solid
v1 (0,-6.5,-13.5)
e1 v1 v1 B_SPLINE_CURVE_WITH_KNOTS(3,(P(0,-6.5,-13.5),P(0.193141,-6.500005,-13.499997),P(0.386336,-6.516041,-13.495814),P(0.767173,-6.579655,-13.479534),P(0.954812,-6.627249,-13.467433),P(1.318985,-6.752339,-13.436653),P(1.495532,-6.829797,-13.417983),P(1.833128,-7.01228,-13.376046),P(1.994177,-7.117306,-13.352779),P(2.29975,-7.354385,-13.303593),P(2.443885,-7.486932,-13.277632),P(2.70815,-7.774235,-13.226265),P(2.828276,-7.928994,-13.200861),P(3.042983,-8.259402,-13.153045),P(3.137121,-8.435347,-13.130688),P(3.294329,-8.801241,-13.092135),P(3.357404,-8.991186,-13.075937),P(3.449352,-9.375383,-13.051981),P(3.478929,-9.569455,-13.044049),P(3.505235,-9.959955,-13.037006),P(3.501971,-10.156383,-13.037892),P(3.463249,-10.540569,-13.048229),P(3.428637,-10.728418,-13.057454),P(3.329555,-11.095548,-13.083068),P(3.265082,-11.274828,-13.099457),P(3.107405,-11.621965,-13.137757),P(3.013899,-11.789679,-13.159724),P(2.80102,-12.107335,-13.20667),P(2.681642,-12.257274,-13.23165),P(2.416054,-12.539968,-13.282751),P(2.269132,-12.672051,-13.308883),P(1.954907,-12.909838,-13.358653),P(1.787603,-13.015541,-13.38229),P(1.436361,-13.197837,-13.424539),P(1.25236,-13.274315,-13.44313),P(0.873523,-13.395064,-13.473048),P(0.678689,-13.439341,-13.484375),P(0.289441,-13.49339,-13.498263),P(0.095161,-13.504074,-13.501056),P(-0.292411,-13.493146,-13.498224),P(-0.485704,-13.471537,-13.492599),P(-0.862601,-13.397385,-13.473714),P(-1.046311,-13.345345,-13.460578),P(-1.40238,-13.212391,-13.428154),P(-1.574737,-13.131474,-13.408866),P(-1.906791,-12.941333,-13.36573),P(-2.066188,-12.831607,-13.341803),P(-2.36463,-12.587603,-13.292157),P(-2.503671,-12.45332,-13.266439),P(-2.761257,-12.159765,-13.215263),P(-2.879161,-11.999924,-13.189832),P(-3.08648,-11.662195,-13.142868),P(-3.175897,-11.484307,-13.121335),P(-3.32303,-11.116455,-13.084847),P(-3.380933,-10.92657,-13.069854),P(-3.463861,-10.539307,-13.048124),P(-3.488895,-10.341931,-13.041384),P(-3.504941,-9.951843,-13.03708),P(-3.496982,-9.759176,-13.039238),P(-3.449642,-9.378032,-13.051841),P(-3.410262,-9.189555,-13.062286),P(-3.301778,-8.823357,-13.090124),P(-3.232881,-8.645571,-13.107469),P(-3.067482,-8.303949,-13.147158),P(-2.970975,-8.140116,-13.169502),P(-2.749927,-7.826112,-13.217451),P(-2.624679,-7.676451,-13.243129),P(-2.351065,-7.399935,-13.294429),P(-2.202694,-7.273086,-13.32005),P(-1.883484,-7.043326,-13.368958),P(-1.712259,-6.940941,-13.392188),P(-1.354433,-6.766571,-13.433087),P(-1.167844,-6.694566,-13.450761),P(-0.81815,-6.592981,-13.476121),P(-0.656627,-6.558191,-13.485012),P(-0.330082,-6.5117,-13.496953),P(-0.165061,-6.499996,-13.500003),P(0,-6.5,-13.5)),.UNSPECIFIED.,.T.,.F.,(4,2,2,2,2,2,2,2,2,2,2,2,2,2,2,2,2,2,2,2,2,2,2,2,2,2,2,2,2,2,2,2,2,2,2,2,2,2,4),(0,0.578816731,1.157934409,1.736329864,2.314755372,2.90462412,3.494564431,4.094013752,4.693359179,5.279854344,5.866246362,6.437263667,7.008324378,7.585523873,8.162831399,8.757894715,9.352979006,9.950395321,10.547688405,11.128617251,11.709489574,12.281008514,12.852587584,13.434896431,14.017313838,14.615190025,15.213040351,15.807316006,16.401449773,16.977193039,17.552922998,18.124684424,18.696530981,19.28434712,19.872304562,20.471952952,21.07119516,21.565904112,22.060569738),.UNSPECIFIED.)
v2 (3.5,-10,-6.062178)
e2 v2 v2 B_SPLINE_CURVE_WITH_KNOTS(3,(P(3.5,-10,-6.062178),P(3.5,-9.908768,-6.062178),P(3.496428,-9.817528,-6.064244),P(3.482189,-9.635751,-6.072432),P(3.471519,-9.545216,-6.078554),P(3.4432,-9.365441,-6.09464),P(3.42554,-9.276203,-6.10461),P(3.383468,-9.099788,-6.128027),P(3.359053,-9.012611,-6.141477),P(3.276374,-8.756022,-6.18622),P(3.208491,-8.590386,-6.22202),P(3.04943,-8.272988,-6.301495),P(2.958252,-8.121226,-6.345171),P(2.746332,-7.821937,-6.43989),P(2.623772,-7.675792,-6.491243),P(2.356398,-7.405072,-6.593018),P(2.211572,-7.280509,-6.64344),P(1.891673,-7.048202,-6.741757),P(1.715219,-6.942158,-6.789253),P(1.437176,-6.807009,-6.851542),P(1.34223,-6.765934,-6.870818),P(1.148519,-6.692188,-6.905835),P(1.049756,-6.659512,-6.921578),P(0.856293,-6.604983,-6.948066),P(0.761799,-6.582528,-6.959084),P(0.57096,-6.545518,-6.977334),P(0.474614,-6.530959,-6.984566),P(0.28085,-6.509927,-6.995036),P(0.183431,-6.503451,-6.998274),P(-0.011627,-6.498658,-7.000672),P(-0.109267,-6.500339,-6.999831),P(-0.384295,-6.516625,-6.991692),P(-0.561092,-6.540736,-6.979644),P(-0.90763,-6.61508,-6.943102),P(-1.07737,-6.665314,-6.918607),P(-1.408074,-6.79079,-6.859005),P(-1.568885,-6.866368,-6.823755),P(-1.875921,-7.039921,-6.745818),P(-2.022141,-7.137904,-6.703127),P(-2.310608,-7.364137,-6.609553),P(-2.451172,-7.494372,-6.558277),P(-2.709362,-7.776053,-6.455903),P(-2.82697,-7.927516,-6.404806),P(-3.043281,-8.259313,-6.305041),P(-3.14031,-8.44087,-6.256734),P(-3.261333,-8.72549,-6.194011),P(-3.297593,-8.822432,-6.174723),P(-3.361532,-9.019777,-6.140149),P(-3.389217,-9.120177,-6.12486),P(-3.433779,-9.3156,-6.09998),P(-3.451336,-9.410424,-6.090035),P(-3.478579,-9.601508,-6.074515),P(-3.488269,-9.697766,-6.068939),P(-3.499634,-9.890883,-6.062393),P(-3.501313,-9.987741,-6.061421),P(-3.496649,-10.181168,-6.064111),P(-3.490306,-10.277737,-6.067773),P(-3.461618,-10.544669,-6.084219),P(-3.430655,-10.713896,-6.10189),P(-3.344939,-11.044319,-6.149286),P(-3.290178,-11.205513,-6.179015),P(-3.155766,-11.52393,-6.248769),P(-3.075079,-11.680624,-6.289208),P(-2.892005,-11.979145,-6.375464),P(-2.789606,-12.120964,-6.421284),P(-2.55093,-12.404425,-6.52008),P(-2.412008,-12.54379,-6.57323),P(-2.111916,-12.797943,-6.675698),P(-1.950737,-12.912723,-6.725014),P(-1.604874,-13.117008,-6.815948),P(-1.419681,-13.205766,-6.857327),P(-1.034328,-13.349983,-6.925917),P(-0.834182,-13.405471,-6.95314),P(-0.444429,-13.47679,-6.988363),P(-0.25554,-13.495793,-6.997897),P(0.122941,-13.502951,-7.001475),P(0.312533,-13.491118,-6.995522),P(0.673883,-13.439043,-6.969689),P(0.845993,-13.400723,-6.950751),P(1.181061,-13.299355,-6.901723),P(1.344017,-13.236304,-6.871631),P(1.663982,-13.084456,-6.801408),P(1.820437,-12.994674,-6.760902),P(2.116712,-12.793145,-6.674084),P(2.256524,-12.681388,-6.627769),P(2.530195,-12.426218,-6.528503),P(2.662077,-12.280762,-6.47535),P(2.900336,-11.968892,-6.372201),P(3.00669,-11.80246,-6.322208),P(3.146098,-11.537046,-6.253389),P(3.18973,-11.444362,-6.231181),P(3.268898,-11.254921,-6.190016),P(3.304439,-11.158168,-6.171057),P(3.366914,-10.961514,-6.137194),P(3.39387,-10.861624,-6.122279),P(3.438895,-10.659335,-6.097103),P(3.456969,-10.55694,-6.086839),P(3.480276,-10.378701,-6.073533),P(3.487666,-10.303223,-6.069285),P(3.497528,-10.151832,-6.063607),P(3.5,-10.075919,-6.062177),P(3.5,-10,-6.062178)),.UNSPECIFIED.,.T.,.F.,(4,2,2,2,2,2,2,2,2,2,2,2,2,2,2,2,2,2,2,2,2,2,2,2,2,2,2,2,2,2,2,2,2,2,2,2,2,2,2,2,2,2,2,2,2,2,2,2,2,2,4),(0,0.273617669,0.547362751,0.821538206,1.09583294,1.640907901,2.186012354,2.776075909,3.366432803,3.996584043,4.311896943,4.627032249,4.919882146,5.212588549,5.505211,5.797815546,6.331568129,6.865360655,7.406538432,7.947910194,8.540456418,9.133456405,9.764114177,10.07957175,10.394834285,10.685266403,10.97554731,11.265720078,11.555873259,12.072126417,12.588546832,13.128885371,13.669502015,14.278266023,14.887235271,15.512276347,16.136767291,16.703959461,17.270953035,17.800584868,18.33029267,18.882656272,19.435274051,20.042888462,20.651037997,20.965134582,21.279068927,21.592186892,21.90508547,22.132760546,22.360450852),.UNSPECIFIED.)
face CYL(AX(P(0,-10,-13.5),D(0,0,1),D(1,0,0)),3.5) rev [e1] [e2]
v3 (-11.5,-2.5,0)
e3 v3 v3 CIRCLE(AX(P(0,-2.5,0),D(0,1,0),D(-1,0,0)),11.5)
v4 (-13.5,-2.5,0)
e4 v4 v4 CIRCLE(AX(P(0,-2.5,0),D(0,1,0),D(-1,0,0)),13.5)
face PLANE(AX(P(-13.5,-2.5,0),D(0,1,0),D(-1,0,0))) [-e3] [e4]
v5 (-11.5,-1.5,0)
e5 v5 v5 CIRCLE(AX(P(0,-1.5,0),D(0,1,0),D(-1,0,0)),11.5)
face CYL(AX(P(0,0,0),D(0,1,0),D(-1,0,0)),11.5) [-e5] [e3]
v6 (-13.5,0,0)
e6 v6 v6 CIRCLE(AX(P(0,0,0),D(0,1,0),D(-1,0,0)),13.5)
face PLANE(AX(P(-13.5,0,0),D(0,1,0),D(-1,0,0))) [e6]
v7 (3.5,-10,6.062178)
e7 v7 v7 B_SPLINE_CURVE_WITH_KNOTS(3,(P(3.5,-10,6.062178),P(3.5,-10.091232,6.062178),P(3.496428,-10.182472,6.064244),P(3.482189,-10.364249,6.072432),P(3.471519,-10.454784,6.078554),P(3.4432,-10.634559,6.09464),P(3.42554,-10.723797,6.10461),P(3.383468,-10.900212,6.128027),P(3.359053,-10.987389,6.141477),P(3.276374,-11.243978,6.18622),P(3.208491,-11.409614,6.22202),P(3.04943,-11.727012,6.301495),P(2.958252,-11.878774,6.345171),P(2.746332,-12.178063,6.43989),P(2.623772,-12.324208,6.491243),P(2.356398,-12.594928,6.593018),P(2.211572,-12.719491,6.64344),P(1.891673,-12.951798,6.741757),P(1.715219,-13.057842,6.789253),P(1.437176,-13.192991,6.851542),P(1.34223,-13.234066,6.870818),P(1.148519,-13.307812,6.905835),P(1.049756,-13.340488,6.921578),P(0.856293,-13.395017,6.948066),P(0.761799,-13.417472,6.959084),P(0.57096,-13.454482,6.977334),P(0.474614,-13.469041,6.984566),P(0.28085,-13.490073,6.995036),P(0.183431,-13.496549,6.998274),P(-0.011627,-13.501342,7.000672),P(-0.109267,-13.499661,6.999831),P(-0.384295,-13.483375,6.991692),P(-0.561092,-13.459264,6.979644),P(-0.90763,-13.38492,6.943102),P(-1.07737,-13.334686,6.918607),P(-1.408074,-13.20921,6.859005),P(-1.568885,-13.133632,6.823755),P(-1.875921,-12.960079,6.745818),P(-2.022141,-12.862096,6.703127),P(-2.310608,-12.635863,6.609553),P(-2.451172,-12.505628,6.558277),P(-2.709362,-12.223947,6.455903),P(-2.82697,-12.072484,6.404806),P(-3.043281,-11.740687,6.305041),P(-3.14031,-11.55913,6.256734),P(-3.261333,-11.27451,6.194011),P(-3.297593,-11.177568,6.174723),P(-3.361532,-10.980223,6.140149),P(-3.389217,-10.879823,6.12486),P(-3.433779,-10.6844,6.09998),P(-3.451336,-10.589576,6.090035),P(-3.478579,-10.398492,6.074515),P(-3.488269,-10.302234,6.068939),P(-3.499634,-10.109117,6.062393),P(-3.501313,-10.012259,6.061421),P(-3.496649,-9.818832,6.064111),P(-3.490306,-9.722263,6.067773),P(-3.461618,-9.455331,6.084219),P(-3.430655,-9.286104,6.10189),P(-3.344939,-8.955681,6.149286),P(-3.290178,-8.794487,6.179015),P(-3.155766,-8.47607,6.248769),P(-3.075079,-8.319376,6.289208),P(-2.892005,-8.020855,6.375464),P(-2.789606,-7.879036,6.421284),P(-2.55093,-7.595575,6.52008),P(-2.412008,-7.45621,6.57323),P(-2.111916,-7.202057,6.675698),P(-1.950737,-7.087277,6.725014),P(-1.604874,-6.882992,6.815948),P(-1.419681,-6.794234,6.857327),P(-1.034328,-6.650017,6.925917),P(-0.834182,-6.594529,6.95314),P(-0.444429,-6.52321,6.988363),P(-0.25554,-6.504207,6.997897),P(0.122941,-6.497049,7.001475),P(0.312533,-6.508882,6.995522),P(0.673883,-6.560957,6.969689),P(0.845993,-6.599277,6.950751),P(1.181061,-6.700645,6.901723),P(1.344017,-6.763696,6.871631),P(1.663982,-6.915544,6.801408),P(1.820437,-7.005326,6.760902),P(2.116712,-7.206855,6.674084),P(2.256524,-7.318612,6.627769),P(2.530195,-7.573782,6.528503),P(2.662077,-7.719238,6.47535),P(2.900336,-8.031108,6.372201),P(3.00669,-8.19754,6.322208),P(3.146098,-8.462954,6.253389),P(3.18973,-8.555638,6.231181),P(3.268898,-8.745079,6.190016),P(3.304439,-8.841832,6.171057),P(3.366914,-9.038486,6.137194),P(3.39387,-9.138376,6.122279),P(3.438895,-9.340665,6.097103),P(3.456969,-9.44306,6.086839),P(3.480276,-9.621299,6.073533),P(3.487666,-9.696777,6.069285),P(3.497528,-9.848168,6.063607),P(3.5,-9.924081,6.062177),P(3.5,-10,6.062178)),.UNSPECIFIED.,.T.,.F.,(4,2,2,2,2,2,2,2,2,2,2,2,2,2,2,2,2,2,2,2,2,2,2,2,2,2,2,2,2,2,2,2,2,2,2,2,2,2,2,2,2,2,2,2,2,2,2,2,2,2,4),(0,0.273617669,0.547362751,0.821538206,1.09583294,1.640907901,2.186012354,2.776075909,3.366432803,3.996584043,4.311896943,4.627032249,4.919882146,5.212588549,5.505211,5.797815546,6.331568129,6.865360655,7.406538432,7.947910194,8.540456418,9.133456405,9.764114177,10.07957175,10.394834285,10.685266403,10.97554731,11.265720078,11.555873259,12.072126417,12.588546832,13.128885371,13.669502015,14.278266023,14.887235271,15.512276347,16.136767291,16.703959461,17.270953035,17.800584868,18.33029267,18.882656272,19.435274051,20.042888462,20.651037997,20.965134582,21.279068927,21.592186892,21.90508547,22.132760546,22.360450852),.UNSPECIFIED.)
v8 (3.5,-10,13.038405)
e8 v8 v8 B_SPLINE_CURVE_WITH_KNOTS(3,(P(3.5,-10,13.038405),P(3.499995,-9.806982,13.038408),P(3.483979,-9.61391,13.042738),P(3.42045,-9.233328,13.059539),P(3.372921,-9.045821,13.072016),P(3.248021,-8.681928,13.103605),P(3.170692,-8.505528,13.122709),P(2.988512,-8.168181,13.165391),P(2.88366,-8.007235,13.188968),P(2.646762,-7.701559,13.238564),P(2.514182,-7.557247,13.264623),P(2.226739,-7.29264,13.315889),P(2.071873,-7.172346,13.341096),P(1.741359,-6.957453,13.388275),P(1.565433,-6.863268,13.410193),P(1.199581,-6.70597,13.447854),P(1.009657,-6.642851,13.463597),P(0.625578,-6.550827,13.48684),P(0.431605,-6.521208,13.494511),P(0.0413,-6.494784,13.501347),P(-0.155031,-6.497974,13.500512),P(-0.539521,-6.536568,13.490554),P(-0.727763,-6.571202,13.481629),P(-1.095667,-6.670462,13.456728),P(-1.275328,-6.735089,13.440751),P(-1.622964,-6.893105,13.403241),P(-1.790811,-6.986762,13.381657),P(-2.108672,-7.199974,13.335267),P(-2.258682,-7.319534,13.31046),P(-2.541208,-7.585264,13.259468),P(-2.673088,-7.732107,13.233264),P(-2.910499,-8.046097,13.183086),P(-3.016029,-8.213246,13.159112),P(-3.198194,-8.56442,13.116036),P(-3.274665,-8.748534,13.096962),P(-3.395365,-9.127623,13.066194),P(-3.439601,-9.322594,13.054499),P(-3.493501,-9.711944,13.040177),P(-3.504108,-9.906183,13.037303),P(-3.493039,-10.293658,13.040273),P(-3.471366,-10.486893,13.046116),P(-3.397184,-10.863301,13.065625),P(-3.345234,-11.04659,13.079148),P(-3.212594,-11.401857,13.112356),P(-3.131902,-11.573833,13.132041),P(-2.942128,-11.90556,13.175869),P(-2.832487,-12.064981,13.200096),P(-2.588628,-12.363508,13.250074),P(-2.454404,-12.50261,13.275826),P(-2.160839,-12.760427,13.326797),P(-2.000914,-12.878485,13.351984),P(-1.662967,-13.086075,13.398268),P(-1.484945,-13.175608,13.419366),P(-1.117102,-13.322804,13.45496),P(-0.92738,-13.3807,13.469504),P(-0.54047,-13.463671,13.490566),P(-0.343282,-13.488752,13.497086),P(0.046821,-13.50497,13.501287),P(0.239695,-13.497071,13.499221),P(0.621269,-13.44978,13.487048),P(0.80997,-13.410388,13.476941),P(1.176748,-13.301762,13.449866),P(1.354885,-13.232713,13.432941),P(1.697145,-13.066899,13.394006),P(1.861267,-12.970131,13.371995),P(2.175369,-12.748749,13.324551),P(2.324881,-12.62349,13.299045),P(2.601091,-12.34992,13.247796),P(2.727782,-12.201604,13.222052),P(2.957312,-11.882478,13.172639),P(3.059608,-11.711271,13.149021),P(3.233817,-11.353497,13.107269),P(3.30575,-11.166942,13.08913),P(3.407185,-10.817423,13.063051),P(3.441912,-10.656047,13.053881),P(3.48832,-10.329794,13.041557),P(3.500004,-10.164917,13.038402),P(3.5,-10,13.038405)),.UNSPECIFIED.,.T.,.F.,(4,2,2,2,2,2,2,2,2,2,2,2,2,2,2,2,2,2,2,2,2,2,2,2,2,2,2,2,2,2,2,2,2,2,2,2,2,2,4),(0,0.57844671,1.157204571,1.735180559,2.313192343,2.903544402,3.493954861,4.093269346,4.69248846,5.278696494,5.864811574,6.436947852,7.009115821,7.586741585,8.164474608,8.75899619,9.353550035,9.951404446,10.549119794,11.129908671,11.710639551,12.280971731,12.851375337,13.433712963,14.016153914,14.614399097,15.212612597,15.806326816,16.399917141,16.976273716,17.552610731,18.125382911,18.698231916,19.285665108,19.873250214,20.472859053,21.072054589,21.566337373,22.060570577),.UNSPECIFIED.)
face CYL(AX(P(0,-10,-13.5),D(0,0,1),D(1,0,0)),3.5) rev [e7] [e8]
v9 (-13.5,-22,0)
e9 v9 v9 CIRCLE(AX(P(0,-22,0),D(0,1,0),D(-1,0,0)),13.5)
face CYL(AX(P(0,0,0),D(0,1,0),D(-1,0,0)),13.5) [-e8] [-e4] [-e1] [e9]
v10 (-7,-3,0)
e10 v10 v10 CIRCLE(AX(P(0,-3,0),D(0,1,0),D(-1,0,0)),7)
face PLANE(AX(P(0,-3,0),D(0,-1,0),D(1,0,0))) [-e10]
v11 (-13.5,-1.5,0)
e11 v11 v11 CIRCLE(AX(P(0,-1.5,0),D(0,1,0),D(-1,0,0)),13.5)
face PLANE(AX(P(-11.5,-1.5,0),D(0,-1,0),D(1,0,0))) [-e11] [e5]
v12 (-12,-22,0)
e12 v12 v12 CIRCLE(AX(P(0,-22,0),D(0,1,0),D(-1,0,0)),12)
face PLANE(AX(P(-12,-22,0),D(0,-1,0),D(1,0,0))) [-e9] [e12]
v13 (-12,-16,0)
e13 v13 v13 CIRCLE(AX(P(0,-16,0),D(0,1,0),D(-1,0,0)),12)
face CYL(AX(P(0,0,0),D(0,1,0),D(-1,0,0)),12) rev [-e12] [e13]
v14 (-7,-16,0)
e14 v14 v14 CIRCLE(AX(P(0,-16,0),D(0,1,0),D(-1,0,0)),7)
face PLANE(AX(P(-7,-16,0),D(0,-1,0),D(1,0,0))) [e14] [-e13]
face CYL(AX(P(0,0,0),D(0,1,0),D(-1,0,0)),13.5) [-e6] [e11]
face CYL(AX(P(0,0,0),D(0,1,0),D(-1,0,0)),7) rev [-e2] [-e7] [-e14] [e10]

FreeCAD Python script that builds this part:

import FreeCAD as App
import Part
import Sketcher

V = App.Vector

doc = App.newDocument("Part")
body = doc.addObject("PartDesign::Body", "Body")

# Sketch on XY plane
sketch1 = body.newObject("Sketcher::SketchObject", "Sketch")
sketch1.AttachmentSupport = (doc.getObject("XY_Plane"), [""])
sketch1.MapMode = "FlatFace"
sketch1.addGeometry(Part.LineSegment(V(0, -3, 0), V(0, 0, 0)), False)
sketch1.addGeometry(Part.LineSegment(V(0, 0, 0), V(-13.5, 0, 0)), False)
sketch1.addGeometry(Part.LineSegment(V(-13.5, 0, 0), V(-13.5, -1.5, 0)), False)
sketch1.addGeometry(Part.LineSegment(V(-13.5, -1.5, 0), V(-11.5, -1.5, 0)), False)
sketch1.addGeometry(Part.LineSegment(V(-11.5, -1.5, 0), V(-11.5, -2.5, 0)), False)
sketch1.addGeometry(Part.LineSegment(V(-11.5, -2.5, 0), V(-13.5, -2.5, 0)), False)
sketch1.addGeometry(Part.LineSegment(V(-13.5, -2.5, 0), V(-13.5, -22, 0)), False)
sketch1.addGeometry(Part.LineSegment(V(-13.5, -22, 0), V(-12, -22, 0)), False)
sketch1.addGeometry(Part.LineSegment(V(-12, -22, 0), V(-12, -16, 0)), False)
sketch1.addGeometry(Part.LineSegment(V(-12, -16, 0), V(-7, -16, 0)), False)
sketch1.addGeometry(Part.LineSegment(V(-7, -16, 0), V(-7, -3, 0)), False)
sketch1.addGeometry(Part.LineSegment(V(-7, -3, 0), V(0, -3, 0)), False)
sketch1.addConstraint(Sketcher.Constraint("Coincident", 0, 2, 1, 1))
sketch1.addConstraint(Sketcher.Constraint("Coincident", 1, 2, 2, 1))
sketch1.addConstraint(Sketcher.Constraint("Coincident", 2, 2, 3, 1))
sketch1.addConstraint(Sketcher.Constraint("Coincident", 3, 2, 4, 1))
sketch1.addConstraint(Sketcher.Constraint("Coincident", 4, 2, 5, 1))
sketch1.addConstraint(Sketcher.Constraint("Coincident", 5, 2, 6, 1))
sketch1.addConstraint(Sketcher.Constraint("Coincident", 6, 2, 7, 1))
sketch1.addConstraint(Sketcher.Constraint("Coincident", 7, 2, 8, 1))
sketch1.addConstraint(Sketcher.Constraint("Coincident", 8, 2, 9, 1))
sketch1.addConstraint(Sketcher.Constraint("Coincident", 9, 2, 10, 1))
sketch1.addConstraint(Sketcher.Constraint("Coincident", 10, 2, 11, 1))
sketch1.addConstraint(Sketcher.Constraint("Coincident", 11, 2, 0, 1))
sketch1.addConstraint(Sketcher.Constraint("Vertical", 0))
sketch1.addConstraint(Sketcher.Constraint("Horizontal", 1))
sketch1.addConstraint(Sketcher.Constraint("Vertical", 2))
sketch1.addConstraint(Sketcher.Constraint("Horizontal", 3))
sketch1.addConstraint(Sketcher.Constraint("Vertical", 4))
sketch1.addConstraint(Sketcher.Constraint("Horizontal", 5))
sketch1.addConstraint(Sketcher.Constraint("Vertical", 6))
sketch1.addConstraint(Sketcher.Constraint("Horizontal", 7))
sketch1.addConstraint(Sketcher.Constraint("Vertical", 8))
sketch1.addConstraint(Sketcher.Constraint("Horizontal", 9))
sketch1.addConstraint(Sketcher.Constraint("Vertical", 10))
sketch1.addConstraint(Sketcher.Constraint("Horizontal", 11))
sketch1.addConstraint(Sketcher.Constraint("Coincident", 0, 2, -1, 1))
sketch1.addConstraint(Sketcher.Constraint("Vertical", 2, 2, 5, 2))
sketch1.addConstraint(Sketcher.Constraint("Equal", 7, 2))
sketch1.addConstraint(Sketcher.Constraint("DistanceX", 3, 1, 3, 2, 2.0))
sketch1.addConstraint(Sketcher.Constraint("DistanceX", 9, 1, 9, 2, 5.0))
sketch1.addConstraint(Sketcher.Constraint("DistanceX", 11, 1, 11, 2, 7.0))
sketch1.addConstraint(Sketcher.Constraint("DistanceY", 0, 1, 0, 2, 3.0))
sketch1.addConstraint(Sketcher.Constraint("DistanceY", 4, 2, 4, 1, 1.0))
sketch1.addConstraint(Sketcher.Constraint("DistanceY", 8, 1, 8, 2, 6.0))
sketch1.addConstraint(Sketcher.Constraint("DistanceY", 10, 1, 10, 2, 13.0))
sketch1.addConstraint(Sketcher.Constraint("DistanceX", 1, 2, 1, 1, 13.5))
revolution = body.newObject("PartDesign::Revolution", "Revolution")
revolution.Profile = sketch1
revolution.ReferenceAxis = (sketch1, ["V_Axis"])
revolution.Angle = 360

# Sketch on XY plane
sketch2 = body.newObject("Sketcher::SketchObject", "Sketch001")
sketch2.AttachmentSupport = (doc.getObject("XY_Plane"), [""])
sketch2.MapMode = "FlatFace"
sketch2.addGeometry(Part.Circle(V(0, -10, 0), V(0, 0, 1), 3.5), False)
sketch2.addConstraint(Sketcher.Constraint("PointOnObject", 0, 3, -2))
sketch2.addConstraint(Sketcher.Constraint("Diameter", 0, 7.0))
sketch2.addConstraint(Sketcher.Constraint("DistanceY", 0, 3, -1, 1, 10.0))
pocket1 = body.newObject("PartDesign::Pocket", "Pocket")
pocket1.Profile = sketch2
pocket1.Type = "ThroughAll"
pocket1.Midplane = True

doc.recompute()
